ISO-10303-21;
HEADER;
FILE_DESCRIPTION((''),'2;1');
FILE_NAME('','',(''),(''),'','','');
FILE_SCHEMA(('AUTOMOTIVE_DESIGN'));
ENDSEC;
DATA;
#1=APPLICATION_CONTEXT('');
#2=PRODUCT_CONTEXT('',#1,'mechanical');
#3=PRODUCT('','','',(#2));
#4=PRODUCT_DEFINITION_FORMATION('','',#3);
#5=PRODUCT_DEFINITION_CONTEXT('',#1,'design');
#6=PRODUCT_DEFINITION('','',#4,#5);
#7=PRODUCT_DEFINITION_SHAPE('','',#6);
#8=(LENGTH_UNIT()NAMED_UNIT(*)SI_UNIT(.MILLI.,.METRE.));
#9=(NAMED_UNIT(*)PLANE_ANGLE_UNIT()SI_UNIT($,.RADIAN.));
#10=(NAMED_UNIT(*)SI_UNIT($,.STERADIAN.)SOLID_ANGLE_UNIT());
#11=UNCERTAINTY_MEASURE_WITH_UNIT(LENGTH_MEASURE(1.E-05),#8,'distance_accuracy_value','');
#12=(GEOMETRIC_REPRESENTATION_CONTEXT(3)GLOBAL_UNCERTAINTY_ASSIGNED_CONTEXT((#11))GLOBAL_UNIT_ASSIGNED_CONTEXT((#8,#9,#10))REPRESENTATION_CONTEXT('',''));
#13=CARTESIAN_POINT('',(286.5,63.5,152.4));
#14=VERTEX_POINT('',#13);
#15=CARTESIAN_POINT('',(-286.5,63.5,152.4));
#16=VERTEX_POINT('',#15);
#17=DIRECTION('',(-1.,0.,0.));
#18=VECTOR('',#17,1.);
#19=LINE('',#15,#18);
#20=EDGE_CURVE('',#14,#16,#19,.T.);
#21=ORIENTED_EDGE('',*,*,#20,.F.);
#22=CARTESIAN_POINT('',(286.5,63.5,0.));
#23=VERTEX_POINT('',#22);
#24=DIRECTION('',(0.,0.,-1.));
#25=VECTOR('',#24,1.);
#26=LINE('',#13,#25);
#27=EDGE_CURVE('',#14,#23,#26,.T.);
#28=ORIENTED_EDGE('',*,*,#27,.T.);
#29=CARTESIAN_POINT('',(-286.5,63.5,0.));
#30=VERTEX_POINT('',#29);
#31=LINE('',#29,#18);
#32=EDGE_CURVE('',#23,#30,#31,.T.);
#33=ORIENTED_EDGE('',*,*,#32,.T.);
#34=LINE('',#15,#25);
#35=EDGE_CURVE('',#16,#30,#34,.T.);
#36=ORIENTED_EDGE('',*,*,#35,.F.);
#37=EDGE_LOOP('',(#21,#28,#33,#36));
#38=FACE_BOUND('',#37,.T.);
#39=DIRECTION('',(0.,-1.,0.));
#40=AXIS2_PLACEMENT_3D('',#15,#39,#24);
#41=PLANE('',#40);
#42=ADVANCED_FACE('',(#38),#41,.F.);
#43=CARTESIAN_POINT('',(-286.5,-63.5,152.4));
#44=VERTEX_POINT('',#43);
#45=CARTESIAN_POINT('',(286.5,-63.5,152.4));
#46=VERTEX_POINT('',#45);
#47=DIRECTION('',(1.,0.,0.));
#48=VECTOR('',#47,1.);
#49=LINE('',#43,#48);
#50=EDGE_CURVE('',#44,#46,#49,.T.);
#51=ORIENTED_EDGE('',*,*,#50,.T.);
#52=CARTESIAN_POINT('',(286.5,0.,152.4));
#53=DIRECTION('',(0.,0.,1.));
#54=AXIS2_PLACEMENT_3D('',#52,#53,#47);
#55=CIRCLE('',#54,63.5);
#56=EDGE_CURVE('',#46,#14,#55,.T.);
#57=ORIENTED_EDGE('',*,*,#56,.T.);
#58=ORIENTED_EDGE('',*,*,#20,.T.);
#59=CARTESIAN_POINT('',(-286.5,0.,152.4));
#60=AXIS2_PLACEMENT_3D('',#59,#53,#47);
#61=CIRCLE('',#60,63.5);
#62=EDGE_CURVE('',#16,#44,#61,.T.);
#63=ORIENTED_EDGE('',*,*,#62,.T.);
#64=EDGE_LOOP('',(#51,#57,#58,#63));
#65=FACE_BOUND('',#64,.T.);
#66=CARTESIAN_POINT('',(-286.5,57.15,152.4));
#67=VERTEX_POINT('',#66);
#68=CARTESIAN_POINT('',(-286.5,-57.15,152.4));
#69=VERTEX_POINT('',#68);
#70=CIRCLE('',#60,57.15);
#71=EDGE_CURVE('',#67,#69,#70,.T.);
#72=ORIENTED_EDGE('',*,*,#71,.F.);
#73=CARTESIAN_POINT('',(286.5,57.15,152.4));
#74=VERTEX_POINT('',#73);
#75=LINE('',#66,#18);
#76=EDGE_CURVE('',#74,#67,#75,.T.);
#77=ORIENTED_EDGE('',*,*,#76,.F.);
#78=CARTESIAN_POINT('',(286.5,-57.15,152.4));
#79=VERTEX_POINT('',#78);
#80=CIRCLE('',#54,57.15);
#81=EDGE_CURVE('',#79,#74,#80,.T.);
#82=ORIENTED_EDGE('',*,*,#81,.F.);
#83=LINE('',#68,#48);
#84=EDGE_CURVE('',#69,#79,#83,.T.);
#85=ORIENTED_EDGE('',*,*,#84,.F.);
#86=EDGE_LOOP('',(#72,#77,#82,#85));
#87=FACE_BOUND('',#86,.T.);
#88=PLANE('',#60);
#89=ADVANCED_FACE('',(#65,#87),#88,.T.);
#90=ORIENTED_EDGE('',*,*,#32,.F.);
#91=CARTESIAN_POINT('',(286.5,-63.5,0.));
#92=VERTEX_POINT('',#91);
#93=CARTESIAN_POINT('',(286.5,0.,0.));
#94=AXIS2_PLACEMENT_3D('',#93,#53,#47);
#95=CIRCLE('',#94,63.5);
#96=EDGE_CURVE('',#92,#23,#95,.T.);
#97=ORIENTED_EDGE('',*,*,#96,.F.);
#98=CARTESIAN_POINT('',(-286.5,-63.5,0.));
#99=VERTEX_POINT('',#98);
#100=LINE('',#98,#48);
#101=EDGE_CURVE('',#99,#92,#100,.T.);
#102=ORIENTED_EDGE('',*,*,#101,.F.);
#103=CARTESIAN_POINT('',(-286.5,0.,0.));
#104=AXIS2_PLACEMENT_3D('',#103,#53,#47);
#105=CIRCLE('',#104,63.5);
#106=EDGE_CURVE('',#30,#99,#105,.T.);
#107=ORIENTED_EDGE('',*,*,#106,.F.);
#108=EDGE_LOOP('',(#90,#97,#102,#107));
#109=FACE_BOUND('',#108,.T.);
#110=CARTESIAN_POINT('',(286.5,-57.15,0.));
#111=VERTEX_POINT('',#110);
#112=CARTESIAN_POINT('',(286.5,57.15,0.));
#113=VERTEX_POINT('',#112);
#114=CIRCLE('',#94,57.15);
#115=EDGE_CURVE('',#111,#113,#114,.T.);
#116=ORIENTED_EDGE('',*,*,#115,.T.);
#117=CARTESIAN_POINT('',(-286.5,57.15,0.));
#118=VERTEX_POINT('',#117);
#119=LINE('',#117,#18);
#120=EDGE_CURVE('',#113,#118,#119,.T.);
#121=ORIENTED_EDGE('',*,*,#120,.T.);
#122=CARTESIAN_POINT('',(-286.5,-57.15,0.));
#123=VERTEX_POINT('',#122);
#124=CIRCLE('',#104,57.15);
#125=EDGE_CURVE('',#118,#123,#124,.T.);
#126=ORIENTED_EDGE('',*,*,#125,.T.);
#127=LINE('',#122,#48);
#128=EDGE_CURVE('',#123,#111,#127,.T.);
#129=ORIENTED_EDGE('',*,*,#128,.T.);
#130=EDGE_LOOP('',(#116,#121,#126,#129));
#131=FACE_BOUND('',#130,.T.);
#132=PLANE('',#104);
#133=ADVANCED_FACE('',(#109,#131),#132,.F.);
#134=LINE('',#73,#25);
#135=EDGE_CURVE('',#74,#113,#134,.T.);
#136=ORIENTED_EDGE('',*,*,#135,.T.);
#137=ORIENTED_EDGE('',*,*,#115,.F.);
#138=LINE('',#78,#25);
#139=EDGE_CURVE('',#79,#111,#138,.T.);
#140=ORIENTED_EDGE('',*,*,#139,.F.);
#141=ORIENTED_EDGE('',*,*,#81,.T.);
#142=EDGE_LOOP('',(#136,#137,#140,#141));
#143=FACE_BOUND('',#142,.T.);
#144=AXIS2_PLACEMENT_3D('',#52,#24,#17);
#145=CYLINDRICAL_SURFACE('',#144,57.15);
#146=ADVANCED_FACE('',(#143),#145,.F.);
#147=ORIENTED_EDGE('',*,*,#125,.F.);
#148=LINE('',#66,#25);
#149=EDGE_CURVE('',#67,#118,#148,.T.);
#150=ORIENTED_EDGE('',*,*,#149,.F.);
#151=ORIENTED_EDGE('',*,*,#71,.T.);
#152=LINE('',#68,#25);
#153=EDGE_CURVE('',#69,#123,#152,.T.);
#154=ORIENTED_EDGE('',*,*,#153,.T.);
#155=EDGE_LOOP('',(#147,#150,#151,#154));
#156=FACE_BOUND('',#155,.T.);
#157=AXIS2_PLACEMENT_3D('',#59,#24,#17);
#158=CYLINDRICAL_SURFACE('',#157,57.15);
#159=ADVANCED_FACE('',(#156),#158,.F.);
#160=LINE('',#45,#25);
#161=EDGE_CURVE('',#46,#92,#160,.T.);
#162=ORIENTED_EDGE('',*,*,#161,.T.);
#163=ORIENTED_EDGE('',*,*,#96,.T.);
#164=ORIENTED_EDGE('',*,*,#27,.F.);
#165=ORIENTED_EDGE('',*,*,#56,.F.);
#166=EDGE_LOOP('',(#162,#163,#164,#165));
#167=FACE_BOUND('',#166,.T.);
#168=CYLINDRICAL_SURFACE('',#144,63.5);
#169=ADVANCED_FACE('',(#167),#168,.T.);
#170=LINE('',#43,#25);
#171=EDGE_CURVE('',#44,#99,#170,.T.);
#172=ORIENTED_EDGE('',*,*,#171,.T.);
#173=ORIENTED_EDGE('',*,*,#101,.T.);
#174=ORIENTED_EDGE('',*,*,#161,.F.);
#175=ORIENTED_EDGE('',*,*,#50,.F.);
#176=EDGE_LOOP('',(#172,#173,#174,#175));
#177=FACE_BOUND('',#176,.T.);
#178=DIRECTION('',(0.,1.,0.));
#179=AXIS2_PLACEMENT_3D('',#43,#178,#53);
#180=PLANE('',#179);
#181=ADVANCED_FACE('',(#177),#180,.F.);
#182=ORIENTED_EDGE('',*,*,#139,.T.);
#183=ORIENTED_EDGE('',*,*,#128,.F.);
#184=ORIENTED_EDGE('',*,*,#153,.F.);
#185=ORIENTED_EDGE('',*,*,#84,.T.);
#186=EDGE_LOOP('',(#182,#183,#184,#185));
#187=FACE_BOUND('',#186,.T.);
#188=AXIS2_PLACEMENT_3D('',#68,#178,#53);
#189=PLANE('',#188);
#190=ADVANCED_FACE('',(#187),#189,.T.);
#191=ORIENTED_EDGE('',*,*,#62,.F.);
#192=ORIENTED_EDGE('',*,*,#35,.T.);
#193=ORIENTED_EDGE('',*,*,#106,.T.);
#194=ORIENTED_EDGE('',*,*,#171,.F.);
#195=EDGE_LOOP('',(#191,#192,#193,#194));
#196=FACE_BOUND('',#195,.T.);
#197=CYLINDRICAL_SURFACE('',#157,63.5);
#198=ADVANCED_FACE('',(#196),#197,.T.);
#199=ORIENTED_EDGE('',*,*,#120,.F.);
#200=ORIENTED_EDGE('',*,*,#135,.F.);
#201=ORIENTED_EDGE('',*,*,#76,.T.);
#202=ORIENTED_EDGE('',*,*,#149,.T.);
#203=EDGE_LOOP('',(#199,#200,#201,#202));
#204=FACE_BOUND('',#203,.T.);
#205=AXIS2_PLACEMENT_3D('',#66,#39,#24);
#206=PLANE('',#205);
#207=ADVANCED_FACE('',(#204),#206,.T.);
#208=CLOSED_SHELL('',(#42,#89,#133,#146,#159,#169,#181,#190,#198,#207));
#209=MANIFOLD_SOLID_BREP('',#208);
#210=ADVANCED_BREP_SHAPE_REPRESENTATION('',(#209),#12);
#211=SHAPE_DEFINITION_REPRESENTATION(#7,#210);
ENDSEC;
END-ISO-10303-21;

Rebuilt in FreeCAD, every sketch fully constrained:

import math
import FreeCAD as App
import Part
import Sketcher
from FreeCAD import Vector
Q = App.Units.Quantity

doc = App.newDocument("Part")
body = doc.addObject("PartDesign::Body", "Body")

sketch1 = body.newObject("Sketcher::SketchObject", "Sketch")
sketch1.AttachmentSupport = (doc.getObject("XY_Plane"), [""])
sketch1.MapMode = "FlatFace"
sketch1.addGeometry(Part.LineSegment(Vector(286, 64, 0), Vector(-286, 64, 0)), False)
sketch1.addGeometry(Part.ArcOfCircle(Part.Circle(Vector(-286, 0, 0), Vector(0, 0, 1), 64), math.radians(90), math.radians(270)), False)
sketch1.addGeometry(Part.LineSegment(Vector(-286, -64, 0), Vector(286, -64, 0)), False)
sketch1.addGeometry(Part.ArcOfCircle(Part.Circle(Vector(286, 0, 0), Vector(0, 0, 1), 64), math.radians(-90), math.radians(90)), False)
sketch1.addGeometry(Part.LineSegment(Vector(-286, 57, 0), Vector(286, 57, 0)), False)
sketch1.addGeometry(Part.ArcOfCircle(Part.Circle(Vector(286, 0, 0), Vector(0, 0, 1), 57), math.radians(-90), math.radians(90)), False)
sketch1.addGeometry(Part.LineSegment(Vector(286, -57, 0), Vector(-286, -57, 0)), False)
sketch1.addGeometry(Part.ArcOfCircle(Part.Circle(Vector(-286, 0, 0), Vector(0, 0, 1), 57), math.radians(90), math.radians(270)), False)
sketch1.addConstraint(Sketcher.Constraint("Tangent", 0, 2, 1, 1))
sketch1.addConstraint(Sketcher.Constraint("Tangent", 1, 2, 2, 1))
sketch1.addConstraint(Sketcher.Constraint("Tangent", 2, 2, 3, 1))
sketch1.addConstraint(Sketcher.Constraint("Tangent", 3, 2, 0, 1))
sketch1.addConstraint(Sketcher.Constraint("Tangent", 4, 2, 5, 2))
sketch1.addConstraint(Sketcher.Constraint("Tangent", 5, 1, 6, 1))
sketch1.addConstraint(Sketcher.Constraint("Tangent", 6, 2, 7, 2))
sketch1.addConstraint(Sketcher.Constraint("Tangent", 7, 1, 4, 1))
sketch1.addConstraint(Sketcher.Constraint("Horizontal", 0))
sketch1.addConstraint(Sketcher.Constraint("Horizontal", 2))
sketch1.addConstraint(Sketcher.Constraint("Horizontal", 4))
sketch1.addConstraint(Sketcher.Constraint("Horizontal", 6))
sketch1.addConstraint(Sketcher.Constraint("Coincident", 5, 3, 3, 3))
sketch1.addConstraint(Sketcher.Constraint("Symmetric", 1, 3, 3, 3, -1, 1))
sketch1.addConstraint(Sketcher.Constraint("Vertical", 7, 3, 0, 2))
sketch1.addConstraint(Sketcher.Constraint("Radius", 1, Q("2.5 in")))
sketch1.addConstraint(Sketcher.Constraint("Radius", 5, Q("2.25 in")))
sketch1.addConstraint(Sketcher.Constraint("DistanceX", 0, 2, 0, 1, Q("573 mm")))
pad1 = body.newObject("PartDesign::Pad", "Pad")
pad1.Profile = sketch1
pad1.Length = Q("6 in")

doc.recompute()
